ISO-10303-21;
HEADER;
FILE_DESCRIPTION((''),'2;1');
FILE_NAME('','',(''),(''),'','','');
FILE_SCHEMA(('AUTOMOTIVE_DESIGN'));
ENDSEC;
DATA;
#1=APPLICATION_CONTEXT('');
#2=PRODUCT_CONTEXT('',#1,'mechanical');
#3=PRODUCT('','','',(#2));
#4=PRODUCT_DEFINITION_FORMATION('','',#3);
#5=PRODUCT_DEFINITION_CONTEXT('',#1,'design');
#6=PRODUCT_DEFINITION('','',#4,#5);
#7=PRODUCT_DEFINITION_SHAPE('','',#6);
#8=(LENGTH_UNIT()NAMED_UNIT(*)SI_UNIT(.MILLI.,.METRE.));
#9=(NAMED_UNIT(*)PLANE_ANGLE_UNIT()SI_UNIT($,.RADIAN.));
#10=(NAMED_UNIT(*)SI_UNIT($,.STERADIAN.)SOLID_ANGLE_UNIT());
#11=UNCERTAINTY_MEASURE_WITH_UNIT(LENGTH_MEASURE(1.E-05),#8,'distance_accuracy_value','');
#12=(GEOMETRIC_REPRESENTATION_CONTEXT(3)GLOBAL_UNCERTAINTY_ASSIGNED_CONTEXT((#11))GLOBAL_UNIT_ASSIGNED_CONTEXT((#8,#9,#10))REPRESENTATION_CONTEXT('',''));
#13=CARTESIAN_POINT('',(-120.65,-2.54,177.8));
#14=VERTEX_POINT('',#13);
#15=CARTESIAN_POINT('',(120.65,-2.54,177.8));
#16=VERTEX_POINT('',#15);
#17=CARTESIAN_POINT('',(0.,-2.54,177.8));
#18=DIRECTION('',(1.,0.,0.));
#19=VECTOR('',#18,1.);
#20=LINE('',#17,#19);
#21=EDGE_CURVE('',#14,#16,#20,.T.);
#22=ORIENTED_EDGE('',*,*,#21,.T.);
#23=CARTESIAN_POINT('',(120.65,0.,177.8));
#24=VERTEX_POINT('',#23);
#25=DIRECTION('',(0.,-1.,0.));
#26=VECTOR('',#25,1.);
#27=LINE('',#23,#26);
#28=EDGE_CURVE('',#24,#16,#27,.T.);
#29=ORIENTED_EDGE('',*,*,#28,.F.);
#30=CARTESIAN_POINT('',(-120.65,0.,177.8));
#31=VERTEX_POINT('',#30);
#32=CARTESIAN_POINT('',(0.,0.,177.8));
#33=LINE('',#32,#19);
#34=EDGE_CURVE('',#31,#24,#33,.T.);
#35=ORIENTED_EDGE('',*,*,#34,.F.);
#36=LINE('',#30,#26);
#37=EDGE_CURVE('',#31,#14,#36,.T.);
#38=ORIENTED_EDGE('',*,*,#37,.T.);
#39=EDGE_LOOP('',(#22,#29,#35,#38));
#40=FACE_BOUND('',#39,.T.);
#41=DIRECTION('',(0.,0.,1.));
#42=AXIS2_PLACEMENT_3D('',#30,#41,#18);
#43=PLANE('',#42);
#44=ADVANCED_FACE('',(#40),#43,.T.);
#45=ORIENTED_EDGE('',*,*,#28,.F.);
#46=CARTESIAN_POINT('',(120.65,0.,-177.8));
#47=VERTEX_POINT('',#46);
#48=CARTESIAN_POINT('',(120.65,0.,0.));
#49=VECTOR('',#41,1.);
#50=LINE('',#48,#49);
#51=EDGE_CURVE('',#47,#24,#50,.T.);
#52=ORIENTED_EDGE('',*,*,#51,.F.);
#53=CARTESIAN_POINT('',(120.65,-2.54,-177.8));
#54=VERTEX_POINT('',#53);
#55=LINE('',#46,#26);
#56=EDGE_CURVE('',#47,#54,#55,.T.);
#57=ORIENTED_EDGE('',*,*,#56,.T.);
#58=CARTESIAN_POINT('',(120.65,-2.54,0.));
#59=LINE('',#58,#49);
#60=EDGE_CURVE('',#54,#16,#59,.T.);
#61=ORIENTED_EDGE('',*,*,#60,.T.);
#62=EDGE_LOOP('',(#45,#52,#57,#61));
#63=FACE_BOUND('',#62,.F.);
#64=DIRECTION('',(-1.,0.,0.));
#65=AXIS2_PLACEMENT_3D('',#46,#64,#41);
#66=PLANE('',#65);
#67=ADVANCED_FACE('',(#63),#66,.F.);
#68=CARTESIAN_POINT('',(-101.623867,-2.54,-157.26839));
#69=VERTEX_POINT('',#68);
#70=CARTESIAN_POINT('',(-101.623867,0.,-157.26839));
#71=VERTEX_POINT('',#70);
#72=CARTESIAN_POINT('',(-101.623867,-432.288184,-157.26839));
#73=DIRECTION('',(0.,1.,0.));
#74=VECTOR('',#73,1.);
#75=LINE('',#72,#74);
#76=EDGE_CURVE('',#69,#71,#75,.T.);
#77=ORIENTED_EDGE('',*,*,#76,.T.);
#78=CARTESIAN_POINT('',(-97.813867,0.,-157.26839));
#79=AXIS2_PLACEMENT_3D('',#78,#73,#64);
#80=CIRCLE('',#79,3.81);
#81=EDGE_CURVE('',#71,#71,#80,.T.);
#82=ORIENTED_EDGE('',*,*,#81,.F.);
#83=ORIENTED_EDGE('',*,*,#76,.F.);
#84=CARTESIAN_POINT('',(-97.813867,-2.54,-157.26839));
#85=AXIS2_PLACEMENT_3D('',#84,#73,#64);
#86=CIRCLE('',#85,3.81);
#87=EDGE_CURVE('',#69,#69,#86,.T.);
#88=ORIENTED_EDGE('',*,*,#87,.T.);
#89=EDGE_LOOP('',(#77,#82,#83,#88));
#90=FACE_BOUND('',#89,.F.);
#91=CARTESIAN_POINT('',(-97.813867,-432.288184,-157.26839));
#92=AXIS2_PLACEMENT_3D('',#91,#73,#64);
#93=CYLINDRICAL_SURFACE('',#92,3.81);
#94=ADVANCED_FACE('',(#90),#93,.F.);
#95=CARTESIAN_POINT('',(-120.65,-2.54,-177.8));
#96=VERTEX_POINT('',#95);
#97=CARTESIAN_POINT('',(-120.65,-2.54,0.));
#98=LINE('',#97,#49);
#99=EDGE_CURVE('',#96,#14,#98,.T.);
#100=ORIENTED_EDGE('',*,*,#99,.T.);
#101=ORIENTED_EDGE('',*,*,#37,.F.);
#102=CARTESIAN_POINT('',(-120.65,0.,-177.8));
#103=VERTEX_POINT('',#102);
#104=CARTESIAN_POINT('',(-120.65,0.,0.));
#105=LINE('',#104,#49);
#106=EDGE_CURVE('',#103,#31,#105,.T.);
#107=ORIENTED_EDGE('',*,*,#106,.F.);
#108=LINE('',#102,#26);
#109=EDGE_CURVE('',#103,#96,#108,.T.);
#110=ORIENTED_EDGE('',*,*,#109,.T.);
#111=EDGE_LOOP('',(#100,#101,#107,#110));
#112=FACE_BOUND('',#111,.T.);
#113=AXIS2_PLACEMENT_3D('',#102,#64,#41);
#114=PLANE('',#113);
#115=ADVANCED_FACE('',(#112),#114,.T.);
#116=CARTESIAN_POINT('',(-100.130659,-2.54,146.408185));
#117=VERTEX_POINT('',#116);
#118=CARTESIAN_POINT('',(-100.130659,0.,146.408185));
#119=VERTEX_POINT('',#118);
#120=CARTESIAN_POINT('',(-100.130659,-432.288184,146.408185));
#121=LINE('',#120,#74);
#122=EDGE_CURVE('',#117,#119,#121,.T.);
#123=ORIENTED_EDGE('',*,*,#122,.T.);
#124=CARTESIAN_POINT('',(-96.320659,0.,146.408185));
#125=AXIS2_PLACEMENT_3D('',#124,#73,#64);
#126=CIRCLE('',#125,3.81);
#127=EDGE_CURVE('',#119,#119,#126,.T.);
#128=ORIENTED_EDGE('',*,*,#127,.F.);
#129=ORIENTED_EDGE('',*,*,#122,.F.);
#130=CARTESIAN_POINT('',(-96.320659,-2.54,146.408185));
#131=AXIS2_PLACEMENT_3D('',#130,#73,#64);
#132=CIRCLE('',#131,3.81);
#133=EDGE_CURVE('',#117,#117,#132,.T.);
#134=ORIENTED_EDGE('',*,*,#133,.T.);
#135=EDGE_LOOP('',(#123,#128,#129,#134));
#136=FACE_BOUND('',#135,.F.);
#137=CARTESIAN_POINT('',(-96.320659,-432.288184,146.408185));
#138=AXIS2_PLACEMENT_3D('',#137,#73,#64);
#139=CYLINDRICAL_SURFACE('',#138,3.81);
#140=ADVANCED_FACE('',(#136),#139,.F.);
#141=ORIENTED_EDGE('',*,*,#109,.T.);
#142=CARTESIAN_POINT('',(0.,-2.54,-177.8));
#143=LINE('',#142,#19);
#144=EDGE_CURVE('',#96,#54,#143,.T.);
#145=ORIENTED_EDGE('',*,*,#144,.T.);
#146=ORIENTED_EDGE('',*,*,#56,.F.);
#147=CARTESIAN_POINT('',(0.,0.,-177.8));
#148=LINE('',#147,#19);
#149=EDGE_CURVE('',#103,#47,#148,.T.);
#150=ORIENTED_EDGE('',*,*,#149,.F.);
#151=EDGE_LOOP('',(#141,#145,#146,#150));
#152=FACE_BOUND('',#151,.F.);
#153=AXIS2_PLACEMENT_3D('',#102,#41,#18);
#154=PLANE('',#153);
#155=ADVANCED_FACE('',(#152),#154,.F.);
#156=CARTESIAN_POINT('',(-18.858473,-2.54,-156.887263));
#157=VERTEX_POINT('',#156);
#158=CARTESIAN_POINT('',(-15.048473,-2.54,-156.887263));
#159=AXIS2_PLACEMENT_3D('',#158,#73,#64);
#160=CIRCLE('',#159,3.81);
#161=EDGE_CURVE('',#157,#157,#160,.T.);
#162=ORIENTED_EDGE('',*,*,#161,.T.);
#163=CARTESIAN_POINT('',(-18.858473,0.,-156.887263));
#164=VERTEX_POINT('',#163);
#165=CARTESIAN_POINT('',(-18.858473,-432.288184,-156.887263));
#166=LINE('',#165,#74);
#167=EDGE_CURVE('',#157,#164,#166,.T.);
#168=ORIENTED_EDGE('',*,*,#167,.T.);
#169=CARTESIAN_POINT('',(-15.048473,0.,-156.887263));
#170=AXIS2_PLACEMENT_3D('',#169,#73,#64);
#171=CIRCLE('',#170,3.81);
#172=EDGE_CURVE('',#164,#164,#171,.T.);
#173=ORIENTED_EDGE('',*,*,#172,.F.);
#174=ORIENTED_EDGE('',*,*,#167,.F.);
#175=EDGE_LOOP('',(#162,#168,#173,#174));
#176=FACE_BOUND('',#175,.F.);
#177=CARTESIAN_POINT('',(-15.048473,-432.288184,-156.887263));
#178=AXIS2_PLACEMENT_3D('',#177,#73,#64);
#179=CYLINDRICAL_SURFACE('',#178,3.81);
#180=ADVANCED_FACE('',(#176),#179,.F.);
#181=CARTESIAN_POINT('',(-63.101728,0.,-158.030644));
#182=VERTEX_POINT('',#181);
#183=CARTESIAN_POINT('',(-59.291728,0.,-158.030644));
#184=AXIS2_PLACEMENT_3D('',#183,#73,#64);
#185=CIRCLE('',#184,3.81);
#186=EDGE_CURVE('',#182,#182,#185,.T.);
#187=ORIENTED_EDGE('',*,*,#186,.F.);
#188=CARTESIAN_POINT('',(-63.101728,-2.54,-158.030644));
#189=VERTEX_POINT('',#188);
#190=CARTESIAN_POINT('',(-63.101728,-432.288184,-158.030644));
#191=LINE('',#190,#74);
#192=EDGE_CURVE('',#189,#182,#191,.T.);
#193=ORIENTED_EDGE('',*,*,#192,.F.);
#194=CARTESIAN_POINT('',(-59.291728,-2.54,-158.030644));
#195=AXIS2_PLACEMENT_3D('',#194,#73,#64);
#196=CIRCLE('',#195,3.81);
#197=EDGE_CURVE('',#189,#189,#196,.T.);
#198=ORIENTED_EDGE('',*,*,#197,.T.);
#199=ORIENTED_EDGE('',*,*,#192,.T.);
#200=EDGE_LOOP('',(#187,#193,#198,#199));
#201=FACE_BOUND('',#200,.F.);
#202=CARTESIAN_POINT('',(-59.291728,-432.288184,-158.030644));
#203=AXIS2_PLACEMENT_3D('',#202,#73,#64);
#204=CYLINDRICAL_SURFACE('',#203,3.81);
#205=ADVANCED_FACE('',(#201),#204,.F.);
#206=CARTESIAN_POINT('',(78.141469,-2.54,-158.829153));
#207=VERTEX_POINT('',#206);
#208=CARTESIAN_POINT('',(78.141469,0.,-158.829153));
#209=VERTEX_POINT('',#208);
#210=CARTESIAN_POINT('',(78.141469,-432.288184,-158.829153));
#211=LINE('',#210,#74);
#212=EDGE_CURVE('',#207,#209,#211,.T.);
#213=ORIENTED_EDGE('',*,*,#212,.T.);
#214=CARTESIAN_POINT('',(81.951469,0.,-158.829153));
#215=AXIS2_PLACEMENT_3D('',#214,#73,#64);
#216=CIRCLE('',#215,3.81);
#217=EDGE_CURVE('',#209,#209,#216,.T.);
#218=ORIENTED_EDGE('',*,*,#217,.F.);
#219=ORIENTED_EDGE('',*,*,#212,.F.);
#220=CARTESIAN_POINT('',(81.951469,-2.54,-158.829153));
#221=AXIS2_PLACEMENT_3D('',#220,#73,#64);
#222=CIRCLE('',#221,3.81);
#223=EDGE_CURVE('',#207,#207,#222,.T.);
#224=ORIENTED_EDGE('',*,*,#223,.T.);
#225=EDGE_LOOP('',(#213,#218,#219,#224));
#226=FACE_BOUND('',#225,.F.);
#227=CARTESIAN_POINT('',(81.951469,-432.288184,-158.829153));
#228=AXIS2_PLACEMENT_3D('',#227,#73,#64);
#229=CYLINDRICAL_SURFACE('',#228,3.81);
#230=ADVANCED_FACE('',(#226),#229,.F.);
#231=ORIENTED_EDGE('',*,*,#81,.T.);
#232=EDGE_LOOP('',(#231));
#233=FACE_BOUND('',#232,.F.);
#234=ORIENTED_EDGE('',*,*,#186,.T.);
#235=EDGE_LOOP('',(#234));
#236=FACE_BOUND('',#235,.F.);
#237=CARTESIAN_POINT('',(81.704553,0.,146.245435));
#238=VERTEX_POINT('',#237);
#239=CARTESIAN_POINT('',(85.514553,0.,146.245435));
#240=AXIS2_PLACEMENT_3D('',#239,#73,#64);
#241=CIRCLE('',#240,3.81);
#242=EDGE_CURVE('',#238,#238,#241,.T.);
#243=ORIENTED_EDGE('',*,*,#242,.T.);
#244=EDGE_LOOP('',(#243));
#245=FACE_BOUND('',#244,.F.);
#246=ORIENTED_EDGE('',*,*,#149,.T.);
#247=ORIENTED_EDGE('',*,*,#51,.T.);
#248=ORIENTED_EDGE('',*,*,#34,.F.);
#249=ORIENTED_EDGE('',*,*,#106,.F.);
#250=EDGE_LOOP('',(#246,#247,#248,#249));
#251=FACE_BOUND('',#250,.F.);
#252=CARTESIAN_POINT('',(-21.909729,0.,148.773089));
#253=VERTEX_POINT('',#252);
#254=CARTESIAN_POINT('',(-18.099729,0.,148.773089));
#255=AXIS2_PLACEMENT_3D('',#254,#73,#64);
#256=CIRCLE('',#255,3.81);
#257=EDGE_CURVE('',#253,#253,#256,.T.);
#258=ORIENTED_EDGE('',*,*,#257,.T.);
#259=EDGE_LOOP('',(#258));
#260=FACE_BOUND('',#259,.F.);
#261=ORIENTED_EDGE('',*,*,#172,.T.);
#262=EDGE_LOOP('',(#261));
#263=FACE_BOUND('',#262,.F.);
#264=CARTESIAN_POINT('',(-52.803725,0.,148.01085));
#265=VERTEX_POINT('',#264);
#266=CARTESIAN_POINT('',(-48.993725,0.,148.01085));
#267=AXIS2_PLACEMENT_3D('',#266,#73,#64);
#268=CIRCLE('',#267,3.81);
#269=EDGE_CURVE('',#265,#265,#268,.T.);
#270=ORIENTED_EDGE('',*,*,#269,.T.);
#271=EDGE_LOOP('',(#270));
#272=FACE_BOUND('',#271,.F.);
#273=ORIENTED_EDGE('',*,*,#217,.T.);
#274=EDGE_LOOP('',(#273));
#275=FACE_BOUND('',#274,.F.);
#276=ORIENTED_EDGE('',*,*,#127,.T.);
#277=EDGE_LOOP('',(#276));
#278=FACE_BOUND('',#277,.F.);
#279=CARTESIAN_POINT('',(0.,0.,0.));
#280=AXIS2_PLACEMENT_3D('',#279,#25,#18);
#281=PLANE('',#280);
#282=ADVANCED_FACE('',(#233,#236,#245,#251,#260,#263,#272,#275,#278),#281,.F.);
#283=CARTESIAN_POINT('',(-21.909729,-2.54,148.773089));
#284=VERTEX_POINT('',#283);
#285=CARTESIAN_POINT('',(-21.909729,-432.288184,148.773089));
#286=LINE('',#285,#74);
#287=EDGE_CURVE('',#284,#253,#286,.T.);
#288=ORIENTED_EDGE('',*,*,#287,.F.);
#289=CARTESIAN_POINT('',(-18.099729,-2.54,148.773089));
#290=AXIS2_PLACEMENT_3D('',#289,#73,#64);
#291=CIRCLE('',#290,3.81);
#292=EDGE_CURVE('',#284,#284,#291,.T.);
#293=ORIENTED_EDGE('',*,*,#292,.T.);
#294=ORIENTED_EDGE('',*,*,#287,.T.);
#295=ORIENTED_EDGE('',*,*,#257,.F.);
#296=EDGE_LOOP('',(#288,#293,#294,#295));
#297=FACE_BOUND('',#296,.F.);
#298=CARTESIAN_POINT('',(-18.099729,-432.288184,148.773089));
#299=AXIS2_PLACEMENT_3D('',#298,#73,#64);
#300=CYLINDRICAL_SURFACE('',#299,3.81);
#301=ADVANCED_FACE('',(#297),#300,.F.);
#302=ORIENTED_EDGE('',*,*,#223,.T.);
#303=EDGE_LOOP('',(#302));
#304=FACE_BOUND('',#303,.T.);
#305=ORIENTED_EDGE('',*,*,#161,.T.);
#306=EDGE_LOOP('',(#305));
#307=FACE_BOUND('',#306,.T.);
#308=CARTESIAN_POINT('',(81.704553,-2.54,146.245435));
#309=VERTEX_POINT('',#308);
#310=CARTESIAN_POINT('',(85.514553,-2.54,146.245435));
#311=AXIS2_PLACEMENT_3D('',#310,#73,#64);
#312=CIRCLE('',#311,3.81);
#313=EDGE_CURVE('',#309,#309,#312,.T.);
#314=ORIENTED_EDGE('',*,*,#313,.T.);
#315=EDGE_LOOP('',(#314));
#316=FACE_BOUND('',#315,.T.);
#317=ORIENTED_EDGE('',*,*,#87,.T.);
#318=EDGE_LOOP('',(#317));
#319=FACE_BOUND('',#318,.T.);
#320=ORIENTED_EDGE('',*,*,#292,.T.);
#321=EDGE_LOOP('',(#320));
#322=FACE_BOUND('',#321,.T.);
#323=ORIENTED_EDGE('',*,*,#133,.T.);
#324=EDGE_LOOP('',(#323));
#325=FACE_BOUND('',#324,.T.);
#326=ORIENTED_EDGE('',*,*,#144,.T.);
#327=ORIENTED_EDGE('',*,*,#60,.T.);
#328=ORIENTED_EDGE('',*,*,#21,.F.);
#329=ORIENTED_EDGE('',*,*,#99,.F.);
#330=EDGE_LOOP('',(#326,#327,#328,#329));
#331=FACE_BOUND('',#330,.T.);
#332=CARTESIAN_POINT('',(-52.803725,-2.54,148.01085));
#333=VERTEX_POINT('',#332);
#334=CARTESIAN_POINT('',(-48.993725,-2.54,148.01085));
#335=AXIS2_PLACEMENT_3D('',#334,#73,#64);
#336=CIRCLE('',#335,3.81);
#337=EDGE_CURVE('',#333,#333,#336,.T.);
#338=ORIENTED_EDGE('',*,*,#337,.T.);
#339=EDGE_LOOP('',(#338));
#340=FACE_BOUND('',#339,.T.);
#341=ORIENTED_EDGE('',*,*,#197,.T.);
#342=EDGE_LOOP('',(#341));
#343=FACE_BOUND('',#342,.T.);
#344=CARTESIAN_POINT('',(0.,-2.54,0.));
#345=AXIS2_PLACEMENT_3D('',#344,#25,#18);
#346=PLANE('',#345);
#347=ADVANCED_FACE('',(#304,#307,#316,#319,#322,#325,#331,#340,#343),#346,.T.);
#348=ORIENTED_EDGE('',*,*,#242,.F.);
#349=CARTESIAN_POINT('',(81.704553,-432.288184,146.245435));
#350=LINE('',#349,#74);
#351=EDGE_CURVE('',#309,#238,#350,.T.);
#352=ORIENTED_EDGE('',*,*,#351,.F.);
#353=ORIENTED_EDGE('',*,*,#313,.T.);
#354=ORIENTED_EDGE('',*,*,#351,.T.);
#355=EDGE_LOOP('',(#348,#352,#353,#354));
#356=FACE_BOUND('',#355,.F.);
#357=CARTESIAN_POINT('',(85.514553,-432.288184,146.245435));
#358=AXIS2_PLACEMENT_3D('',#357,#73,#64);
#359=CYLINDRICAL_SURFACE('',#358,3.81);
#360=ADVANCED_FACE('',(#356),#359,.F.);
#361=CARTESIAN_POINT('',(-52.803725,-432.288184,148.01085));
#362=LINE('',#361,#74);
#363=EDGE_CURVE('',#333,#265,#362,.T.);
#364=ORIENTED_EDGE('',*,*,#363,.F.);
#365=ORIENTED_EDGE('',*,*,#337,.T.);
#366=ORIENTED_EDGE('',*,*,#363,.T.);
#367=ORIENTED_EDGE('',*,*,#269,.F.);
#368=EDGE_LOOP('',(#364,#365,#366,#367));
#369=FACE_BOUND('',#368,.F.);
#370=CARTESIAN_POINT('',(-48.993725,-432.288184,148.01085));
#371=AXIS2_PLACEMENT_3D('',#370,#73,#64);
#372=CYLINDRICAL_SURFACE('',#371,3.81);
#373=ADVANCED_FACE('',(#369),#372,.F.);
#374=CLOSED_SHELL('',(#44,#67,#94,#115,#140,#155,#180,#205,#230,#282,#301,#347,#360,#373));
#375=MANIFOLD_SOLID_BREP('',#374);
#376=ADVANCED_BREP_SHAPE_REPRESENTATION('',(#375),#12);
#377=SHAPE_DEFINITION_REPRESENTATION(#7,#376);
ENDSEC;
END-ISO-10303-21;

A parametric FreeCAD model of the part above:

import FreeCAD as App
import Part
import Sketcher
Q = App.Units.Quantity


def add_polygon(sketch, points):
    """Adds a closed chain of lines whose ends are joined by coincident constraints."""
    first, n = sketch.GeometryCount, len(points)
    for a, b in zip(points, points[1:] + points[:1]):
        sketch.addGeometry(Part.LineSegment(App.Vector(*a, 0), App.Vector(*b, 0)), False)
    for i in range(n):
        sketch.addConstraint(Sketcher.Constraint("Coincident", first + i, 2, first + (i + 1) % n, 1))

doc = App.newDocument("Part")
body = doc.addObject("PartDesign::Body", "Body")

# Sketch on XZ plane
sketch1 = body.newObject("Sketcher::SketchObject", "Sketch")
sketch1.AttachmentSupport = (doc.getObject("XZ_Plane"), [""])
sketch1.MapMode = "FlatFace"
add_polygon(sketch1, [(-121, 178), (-121, -178), (121, -178), (121, 178)])  # lines 0-3
sketch1.addConstraint([
    Sketcher.Constraint("Vertical", 0),
    Sketcher.Constraint("Horizontal", 1),
    Sketcher.Constraint("Vertical", 2),
    Sketcher.Constraint("Horizontal", 3),
    Sketcher.Constraint("Symmetric", 0, 2, 2, 2, -1, 1),
    Sketcher.Constraint("DistanceY", 0, 2, 0, 1, Q("14 in")),
    Sketcher.Constraint("DistanceX", 1, 1, 1, 2, Q("9.5 in")),
])
pad1 = body.newObject("PartDesign::Pad", "Pad")
pad1.Profile = sketch1
pad1.Length = Q("0.1 in")

# Sketch on XZ plane
sketch2 = body.newObject("Sketcher::SketchObject", "Sketch001")
sketch2.AttachmentSupport = (doc.getObject("XZ_Plane"), [""])
sketch2.MapMode = "FlatFace"
sketch2.AttachmentOffset = App.Placement(App.Vector(0, 0, 0.1 * 25.4), App.Rotation())
sketch2.addGeometry([
    Part.Circle(App.Vector(-97.8, -157.3, 0), App.Vector(0, 0, 1), 3.8),  # 0
    Part.Circle(App.Vector(-59.3, -158, 0), App.Vector(0, 0, 1), 3.8),  # 1
    Part.Circle(App.Vector(-15, -156.9, 0), App.Vector(0, 0, 1), 3.8),  # 2
    Part.Circle(App.Vector(-18.1, 148.8, 0), App.Vector(0, 0, 1), 3.8),  # 3
    Part.Circle(App.Vector(-49, 148, 0), App.Vector(0, 0, 1), 3.8),  # 4
    Part.Circle(App.Vector(-96.3, 146.4, 0), App.Vector(0, 0, 1), 3.8),  # 5
], False)
sketch2.addConstraint([
    Sketcher.Constraint("Equal", 0, 1),
    Sketcher.Constraint("Equal", 1, 2),
    Sketcher.Constraint("Equal", 2, 3),
    Sketcher.Constraint("Equal", 3, 4),
    Sketcher.Constraint("Equal", 4, 5),
    Sketcher.Constraint("Diameter", 0, Q("0.3 in")),
    Sketcher.Constraint("DistanceX", 1, 3, 3, 3, Q("41.191999 mm")),
    Sketcher.Constraint("DistanceY", 0, 3, -1, 1, Q("157.26839 mm")),
    Sketcher.Constraint("DistanceX", 3, 3, -1, 1, Q("18.099729 mm")),
    Sketcher.Constraint("DistanceY", -1, 1, 3, 3, Q("148.773089 mm")),
    Sketcher.Constraint("DistanceY", -1, 1, 4, 3, Q("148.01085 mm")),
    Sketcher.Constraint("DistanceX", 5, 3, -1, 1, Q("96.320659 mm")),
    Sketcher.Constraint("DistanceX", 0, 3, 1, 3, Q("38.522139 mm")),
    Sketcher.Constraint("DistanceY", 1, 3, 2, 3, Q("1.143381 mm")),
    Sketcher.Constraint("DistanceY", 2, 3, 3, 3, Q("305.660352 mm")),
    Sketcher.Constraint("DistanceX", 4, 3, 2, 3, Q("33.945252 mm")),
    Sketcher.Constraint("DistanceY", 1, 3, 5, 3, Q("304.438829 mm")),
    Sketcher.Constraint("DistanceX", 2, 3, -1, 1, Q("15.048473 mm")),
])
doc.recompute()
hole = body.newObject("PartDesign::Hole", "Hole")
hole.Profile = sketch2
hole.ThreadType = "None"
hole.Diameter = Q("0.3 in")
hole.DepthType = "ThroughAll"

# Sketch on XZ plane
sketch3 = body.newObject("Sketcher::SketchObject", "Sketch002")
sketch3.AttachmentSupport = (doc.getObject("XZ_Plane"), [""])
sketch3.MapMode = "FlatFace"
sketch3.AttachmentOffset = App.Placement(App.Vector(0, 0, 0.1 * 25.4), App.Rotation())
sketch3.addGeometry(Part.Circle(App.Vector(82, -158.8, 0), App.Vector(0, 0, 1), 3.8), False)
sketch3.addConstraint([
    Sketcher.Constraint("Diameter", 0, Q("0.3 in")),
    Sketcher.Constraint("DistanceX", -1, 1, 0, 3, Q("81.951469 mm")),
    Sketcher.Constraint("DistanceY", 0, 3, -1, 1, Q("158.829153 mm")),
])
doc.recompute()
hole2 = body.newObject("PartDesign::Hole", "Hole001")
hole2.Profile = sketch3
hole2.ThreadType = "None"
hole2.Diameter = Q("0.3 in")
hole2.DepthType = "ThroughAll"

# Sketch on XZ plane
sketch4 = body.newObject("Sketcher::SketchObject", "Sketch003")
sketch4.AttachmentSupport = (doc.getObject("XZ_Plane"), [""])
sketch4.MapMode = "FlatFace"
sketch4.AttachmentOffset = App.Placement(App.Vector(0, 0, 0.1 * 25.4), App.Rotation())
sketch4.addGeometry(Part.Circle(App.Vector(85.5, 146.2, 0), App.Vector(0, 0, 1), 3.8), False)
sketch4.addConstraint([
    Sketcher.Constraint("Diameter", 0, Q("0.3 in")),
    Sketcher.Constraint("DistanceX", -1, 1, 0, 3, Q("85.514553 mm")),
    Sketcher.Constraint("DistanceY", -1, 1, 0, 3, Q("146.245435 mm")),
])
doc.recompute()
hole3 = body.newObject("PartDesign::Hole", "Hole002")
hole3.Profile = sketch4
hole3.ThreadType = "None"
hole3.Diameter = Q("0.3 in")
hole3.DepthType = "ThroughAll"

doc.recompute()
